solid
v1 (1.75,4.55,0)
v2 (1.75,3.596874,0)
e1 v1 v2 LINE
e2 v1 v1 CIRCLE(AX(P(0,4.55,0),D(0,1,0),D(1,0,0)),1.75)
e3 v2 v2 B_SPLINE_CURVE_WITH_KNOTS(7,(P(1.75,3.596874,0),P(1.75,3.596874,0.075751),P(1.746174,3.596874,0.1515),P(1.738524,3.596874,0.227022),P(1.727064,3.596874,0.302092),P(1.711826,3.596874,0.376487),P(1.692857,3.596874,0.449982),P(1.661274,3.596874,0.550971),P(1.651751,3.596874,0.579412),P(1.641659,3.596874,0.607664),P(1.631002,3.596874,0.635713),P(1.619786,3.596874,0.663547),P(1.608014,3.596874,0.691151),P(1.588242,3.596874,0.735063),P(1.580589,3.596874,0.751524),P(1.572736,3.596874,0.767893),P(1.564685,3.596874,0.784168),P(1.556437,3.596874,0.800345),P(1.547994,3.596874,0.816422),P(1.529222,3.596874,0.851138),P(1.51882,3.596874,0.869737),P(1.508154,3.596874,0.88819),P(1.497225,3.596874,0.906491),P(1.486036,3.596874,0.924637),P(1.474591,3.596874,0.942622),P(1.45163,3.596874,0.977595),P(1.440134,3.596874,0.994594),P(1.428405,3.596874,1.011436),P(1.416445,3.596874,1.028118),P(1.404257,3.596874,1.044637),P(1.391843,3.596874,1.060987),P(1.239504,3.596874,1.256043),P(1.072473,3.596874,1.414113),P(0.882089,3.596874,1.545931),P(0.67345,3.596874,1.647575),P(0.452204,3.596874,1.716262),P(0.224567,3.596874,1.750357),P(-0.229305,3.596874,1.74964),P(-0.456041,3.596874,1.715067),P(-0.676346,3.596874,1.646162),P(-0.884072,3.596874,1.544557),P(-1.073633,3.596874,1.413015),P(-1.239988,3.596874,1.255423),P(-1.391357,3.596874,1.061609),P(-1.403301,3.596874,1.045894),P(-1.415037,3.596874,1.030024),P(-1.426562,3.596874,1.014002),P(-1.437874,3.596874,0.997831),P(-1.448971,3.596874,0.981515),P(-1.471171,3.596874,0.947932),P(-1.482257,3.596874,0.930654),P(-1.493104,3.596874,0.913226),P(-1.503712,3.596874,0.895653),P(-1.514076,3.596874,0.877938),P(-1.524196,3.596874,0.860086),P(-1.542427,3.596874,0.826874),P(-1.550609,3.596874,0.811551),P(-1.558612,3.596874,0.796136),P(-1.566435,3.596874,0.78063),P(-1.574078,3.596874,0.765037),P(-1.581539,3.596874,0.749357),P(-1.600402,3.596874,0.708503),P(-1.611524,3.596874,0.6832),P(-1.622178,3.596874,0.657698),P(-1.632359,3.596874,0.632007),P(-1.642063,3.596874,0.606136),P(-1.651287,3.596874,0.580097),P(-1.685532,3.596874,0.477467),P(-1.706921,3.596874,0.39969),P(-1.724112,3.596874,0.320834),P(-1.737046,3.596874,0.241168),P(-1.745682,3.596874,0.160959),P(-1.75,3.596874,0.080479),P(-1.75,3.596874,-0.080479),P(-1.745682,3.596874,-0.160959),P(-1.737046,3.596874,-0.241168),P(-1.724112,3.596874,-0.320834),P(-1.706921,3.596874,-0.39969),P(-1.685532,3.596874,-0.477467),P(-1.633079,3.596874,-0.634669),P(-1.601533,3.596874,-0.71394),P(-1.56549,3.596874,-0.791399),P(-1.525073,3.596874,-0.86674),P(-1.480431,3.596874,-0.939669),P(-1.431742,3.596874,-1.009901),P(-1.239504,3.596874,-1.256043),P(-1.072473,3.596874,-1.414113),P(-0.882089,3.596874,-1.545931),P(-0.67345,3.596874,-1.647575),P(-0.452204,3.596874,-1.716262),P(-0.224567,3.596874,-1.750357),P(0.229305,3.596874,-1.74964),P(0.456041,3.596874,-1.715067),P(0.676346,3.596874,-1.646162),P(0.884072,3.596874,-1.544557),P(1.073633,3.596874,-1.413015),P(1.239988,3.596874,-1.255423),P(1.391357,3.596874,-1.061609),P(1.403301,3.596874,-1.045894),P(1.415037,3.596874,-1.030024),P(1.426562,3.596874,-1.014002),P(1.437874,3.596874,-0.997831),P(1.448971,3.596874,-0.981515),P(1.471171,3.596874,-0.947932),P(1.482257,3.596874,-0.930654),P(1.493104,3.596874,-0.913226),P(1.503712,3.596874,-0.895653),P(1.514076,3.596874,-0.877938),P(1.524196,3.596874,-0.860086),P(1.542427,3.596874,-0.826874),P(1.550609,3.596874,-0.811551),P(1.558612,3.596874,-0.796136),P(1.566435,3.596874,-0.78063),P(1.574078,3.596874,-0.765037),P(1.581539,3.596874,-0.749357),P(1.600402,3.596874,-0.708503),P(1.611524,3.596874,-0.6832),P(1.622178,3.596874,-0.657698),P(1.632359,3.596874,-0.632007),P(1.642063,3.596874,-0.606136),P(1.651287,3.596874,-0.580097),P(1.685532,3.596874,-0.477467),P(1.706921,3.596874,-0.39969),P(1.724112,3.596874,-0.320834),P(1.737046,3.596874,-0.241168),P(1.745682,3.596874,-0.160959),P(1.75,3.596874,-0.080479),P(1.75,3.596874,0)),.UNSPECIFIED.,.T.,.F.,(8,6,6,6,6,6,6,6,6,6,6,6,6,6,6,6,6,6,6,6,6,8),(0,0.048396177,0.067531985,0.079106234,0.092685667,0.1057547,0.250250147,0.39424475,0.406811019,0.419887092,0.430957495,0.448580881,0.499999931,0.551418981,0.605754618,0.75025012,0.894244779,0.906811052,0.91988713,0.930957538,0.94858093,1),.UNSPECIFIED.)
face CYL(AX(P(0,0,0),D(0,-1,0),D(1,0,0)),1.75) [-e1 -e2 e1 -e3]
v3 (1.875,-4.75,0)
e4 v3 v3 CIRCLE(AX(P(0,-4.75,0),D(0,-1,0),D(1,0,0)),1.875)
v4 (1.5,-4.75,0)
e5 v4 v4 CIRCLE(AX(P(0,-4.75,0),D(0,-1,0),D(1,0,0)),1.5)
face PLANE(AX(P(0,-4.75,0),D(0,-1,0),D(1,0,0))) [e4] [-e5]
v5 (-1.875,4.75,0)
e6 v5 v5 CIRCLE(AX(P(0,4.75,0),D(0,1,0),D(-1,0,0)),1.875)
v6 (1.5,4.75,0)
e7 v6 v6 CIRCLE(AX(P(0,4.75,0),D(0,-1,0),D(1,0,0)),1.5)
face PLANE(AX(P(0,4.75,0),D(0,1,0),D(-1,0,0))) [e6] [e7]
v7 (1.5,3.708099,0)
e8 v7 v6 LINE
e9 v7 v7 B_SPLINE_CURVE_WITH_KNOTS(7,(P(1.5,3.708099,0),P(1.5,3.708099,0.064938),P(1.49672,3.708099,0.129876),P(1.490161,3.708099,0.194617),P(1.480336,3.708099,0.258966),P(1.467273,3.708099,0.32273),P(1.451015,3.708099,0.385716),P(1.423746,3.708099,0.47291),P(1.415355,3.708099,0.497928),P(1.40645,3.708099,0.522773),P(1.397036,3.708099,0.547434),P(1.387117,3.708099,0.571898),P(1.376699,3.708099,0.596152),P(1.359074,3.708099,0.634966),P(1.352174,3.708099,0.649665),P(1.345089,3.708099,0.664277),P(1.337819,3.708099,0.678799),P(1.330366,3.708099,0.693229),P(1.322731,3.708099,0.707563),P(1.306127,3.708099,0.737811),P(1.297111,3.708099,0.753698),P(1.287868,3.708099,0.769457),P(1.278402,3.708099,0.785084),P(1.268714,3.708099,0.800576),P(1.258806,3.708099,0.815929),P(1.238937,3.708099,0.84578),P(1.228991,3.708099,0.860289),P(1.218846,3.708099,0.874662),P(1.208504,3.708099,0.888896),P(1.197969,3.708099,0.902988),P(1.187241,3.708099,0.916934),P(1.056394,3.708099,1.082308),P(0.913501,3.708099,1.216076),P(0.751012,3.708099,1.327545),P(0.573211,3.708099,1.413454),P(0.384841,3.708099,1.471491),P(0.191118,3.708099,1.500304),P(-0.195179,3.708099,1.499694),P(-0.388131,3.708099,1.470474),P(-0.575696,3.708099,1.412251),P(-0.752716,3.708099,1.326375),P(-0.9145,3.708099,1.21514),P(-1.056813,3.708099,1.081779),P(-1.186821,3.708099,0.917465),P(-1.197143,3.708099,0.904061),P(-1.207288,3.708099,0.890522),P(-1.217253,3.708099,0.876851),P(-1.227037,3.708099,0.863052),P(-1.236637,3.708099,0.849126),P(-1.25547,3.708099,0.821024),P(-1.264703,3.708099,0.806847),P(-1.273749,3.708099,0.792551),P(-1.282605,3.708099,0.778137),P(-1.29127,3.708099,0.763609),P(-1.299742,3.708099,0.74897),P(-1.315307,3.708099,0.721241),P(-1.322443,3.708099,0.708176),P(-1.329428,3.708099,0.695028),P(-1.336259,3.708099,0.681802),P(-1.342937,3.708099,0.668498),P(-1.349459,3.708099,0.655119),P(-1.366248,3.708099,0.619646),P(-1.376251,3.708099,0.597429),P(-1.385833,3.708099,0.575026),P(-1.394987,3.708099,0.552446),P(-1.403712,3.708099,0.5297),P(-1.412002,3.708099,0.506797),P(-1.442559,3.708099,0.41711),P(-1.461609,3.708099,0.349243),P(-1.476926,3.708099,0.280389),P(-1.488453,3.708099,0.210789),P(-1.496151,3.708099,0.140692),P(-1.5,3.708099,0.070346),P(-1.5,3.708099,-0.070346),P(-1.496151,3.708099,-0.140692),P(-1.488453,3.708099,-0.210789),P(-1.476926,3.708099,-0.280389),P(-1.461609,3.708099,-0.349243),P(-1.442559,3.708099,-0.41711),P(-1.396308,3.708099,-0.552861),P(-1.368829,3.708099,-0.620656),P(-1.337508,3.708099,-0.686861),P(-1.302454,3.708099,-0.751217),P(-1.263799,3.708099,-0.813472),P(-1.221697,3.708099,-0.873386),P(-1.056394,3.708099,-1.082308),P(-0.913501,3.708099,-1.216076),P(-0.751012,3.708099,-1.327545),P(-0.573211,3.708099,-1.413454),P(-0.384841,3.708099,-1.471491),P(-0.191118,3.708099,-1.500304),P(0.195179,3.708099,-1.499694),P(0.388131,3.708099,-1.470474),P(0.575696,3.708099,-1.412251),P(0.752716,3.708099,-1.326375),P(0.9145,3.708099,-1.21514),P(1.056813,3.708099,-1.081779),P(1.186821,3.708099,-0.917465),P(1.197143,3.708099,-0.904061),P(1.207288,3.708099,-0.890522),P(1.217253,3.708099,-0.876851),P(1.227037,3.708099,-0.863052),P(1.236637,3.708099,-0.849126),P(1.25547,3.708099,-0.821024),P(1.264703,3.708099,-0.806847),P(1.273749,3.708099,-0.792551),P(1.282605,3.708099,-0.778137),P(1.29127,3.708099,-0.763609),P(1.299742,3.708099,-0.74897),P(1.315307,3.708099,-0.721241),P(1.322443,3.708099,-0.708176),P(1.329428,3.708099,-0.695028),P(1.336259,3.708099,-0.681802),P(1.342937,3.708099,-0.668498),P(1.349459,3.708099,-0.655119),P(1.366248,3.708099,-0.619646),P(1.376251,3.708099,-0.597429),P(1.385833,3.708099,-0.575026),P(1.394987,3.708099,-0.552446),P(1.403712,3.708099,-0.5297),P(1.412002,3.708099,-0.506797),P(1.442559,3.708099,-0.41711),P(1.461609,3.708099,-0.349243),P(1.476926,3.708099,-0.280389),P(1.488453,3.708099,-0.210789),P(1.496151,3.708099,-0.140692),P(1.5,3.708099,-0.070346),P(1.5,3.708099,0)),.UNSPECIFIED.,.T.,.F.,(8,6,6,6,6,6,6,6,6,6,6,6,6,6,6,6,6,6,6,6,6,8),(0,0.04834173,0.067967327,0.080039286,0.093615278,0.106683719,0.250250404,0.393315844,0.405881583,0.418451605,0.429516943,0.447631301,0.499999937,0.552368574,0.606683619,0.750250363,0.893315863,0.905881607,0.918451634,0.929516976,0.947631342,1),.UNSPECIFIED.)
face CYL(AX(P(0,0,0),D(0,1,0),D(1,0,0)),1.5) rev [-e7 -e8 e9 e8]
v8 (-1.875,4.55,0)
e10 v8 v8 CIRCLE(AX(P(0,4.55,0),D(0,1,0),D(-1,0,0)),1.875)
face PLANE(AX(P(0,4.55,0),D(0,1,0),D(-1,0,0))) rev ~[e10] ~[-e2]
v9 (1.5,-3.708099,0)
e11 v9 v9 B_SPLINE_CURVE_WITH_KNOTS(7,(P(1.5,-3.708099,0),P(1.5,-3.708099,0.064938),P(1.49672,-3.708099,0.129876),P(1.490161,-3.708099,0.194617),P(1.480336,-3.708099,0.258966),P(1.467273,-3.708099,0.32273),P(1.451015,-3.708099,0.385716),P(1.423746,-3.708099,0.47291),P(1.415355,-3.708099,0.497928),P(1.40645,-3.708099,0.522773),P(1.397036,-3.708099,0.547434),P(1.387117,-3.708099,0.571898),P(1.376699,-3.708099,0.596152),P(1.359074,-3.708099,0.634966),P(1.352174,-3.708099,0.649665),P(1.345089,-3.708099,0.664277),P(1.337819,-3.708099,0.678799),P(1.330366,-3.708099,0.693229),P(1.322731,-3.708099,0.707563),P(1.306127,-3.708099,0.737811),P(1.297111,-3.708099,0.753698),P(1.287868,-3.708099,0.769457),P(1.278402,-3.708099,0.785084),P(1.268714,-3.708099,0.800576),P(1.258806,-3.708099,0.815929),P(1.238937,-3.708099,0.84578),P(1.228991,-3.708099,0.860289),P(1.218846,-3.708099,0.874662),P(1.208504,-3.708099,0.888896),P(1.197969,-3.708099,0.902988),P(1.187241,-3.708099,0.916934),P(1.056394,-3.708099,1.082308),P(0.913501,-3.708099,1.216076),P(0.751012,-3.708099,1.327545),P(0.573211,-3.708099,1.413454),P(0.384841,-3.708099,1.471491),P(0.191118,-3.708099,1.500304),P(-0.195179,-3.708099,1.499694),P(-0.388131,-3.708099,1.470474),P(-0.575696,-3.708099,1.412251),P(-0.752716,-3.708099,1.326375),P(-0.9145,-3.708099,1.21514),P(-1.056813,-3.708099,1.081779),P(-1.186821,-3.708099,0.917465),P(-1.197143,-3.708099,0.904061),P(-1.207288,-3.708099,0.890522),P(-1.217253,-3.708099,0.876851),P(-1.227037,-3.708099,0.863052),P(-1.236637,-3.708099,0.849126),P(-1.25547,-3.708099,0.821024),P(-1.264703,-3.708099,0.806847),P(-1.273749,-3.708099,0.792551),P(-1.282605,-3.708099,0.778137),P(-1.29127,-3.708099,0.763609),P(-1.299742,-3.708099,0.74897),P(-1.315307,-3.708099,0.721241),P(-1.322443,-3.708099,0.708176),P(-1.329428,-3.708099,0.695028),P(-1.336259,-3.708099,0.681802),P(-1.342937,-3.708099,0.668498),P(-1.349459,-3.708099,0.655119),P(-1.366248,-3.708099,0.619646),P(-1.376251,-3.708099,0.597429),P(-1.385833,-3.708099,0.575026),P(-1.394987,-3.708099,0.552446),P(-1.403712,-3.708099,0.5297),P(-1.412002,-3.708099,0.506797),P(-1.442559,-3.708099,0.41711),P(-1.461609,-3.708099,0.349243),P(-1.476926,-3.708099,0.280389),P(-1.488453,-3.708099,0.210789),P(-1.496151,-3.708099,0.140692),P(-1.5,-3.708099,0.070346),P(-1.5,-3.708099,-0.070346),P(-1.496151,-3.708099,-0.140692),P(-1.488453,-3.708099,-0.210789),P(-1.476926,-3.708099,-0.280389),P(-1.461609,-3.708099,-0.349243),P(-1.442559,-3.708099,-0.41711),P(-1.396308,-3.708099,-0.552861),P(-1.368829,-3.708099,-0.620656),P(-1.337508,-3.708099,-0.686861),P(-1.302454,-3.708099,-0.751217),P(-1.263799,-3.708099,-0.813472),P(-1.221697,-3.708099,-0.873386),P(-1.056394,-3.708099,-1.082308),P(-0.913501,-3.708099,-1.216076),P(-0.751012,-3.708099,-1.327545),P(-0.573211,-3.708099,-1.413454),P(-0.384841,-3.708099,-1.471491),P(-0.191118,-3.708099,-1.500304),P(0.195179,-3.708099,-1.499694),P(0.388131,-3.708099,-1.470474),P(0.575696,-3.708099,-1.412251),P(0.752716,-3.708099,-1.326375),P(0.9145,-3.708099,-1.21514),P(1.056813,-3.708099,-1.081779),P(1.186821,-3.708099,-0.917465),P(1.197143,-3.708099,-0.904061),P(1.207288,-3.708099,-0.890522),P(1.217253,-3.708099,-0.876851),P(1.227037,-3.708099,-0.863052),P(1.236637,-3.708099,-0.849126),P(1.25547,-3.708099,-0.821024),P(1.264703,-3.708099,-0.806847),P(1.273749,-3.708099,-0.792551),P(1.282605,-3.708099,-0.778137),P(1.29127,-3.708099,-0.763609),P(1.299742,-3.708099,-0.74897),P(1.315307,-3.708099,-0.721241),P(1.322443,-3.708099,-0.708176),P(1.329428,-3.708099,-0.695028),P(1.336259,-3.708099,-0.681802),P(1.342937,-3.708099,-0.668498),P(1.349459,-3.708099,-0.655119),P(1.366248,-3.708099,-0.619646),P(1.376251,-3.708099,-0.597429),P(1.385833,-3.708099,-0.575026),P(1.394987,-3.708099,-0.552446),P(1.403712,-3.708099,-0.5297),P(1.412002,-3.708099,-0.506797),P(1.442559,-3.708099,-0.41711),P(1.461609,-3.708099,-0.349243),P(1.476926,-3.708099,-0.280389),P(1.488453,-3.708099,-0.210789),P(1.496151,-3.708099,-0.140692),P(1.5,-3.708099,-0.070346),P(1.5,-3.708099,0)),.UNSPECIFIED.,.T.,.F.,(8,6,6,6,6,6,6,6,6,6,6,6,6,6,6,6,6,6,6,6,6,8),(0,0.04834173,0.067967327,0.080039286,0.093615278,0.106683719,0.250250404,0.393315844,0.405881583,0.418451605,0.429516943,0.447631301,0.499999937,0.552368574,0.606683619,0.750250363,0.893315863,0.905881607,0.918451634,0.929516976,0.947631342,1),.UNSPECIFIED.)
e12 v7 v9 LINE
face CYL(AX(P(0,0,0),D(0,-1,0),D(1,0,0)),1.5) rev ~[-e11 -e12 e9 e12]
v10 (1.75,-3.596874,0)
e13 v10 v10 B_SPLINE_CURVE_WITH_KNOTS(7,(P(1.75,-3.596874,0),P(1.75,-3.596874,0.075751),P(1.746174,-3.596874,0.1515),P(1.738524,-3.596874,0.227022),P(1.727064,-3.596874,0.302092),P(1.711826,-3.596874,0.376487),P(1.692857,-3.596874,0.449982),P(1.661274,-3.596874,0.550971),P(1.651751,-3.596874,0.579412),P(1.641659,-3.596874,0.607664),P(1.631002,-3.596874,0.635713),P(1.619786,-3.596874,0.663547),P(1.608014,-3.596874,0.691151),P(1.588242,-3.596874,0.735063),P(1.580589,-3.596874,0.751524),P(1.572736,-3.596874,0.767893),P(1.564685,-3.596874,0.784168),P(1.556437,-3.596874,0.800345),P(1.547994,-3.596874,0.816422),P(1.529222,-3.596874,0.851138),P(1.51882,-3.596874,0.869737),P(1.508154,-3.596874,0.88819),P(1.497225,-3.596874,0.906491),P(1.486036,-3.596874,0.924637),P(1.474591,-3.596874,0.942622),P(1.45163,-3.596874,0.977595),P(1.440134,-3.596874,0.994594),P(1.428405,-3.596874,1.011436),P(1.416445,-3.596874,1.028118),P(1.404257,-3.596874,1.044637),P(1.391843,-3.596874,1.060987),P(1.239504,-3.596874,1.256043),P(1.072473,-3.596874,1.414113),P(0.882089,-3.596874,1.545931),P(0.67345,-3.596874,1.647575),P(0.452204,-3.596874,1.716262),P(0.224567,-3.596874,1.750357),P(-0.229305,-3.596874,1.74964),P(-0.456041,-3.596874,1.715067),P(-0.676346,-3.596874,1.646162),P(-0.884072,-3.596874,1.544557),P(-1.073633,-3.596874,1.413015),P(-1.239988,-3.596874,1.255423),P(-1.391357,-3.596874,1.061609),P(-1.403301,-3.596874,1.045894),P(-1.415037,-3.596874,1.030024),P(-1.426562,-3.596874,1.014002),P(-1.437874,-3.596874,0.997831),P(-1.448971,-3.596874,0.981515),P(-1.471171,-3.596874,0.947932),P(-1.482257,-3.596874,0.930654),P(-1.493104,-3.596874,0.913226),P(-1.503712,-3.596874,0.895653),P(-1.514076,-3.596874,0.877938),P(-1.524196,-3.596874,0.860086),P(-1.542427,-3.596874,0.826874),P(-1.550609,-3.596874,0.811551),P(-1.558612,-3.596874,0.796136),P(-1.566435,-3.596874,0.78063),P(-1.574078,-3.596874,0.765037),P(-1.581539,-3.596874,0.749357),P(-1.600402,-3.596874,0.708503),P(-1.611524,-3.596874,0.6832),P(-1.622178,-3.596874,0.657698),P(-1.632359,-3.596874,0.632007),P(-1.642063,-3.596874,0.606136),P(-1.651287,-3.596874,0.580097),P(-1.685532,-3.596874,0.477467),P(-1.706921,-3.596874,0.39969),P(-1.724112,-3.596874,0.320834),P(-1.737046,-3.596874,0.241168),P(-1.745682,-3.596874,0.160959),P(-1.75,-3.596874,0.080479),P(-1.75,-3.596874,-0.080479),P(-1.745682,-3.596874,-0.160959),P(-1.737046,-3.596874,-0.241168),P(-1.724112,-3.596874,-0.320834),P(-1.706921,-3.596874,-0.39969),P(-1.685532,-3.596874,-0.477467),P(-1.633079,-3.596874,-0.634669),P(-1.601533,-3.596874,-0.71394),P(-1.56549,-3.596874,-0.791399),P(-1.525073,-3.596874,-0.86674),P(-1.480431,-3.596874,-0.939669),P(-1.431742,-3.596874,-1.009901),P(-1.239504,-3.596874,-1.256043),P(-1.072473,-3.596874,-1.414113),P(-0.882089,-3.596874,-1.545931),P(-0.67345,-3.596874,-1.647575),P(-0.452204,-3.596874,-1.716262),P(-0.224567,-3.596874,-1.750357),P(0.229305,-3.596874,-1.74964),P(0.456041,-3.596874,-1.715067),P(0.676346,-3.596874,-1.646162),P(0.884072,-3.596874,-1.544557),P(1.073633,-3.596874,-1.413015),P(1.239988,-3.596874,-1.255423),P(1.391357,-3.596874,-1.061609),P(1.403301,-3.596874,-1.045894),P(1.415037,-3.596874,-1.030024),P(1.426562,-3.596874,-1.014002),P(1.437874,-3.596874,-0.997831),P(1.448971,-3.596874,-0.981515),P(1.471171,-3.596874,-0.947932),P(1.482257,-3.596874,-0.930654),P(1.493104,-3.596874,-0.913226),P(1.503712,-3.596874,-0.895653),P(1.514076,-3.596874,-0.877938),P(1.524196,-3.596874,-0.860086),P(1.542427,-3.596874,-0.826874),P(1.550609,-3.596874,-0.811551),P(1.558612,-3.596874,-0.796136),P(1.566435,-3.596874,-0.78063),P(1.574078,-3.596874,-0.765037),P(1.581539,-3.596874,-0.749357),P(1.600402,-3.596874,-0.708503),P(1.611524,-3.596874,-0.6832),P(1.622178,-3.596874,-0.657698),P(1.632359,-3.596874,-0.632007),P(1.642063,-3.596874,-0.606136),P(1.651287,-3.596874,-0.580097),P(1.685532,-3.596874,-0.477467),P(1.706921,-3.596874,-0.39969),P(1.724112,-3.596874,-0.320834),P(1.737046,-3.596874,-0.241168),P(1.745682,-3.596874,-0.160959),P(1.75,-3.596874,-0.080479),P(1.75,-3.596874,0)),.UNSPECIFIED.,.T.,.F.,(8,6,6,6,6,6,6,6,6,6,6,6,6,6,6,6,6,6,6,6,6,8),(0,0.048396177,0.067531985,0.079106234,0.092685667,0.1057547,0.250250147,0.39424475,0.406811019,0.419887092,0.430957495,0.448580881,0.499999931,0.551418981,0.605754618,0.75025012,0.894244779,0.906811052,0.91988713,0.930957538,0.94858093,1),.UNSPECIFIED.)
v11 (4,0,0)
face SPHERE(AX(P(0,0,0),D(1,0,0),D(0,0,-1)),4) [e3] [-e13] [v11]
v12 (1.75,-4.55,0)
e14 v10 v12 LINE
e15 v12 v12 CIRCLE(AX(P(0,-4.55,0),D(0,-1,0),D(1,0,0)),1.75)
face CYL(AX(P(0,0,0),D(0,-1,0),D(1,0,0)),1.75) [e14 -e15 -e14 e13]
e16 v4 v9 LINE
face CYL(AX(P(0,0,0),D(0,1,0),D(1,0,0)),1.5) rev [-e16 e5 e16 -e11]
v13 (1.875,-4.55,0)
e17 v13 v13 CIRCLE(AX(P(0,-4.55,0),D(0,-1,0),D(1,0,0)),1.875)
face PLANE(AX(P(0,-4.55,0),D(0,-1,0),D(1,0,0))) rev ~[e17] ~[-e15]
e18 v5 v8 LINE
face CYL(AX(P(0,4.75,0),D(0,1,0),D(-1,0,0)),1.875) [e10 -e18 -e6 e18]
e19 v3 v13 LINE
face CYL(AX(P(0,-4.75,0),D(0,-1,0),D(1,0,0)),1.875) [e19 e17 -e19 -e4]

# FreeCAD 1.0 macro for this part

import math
import FreeCAD as App
import Part
import Sketcher

doc = App.newDocument("Part")
params = doc.addObject("Spreadsheet::Sheet", "Params")
for row, (alias, value) in enumerate([
    ("sketch1_radius", "4 mm"),
    ("revolution_angle", "360 deg"),
    ("sketch2_diameter", "3 mm"),
    ("pocket1_length", "25 mm"),
    ("sketch3_diameter", "3 mm"),
    ("sketch3_diameter2", "3.5 mm"),
    ("pad1_length", "9.5 mm"),
    ("sketch4_diameter", "3.5 mm"),
    ("sketch4_diameter2", "3.75 mm"),
    ("pad2_length", "0.2 mm"),
    ("sketch5_diameter", "3.5 mm"),
    ("sketch5_diameter2", "3.75 mm"),
    ("pad3_length", "0.2 mm"),
], start=1):
    params.set(f"A{row}", alias)
    params.set(f"B{row}", "=" + value)
    params.setAlias(f"B{row}", alias)

body = doc.addObject("PartDesign::Body", "Body")

sketch1 = body.newObject("Sketcher::SketchObject", "Sketch")
sketch1.AttachmentSupport = (doc.getObject("XZ_Plane"), [""])
sketch1.MapMode = "FlatFace"
sketch1.addGeometry(Part.ArcOfCircle(Part.Circle(App.Vector(0, 0, 0), App.Vector(0, 0, 1), 4), math.radians(180), math.radians(360)), False)
sketch1.addGeometry(Part.LineSegment(App.Vector(4, 0, 0), App.Vector(-4, 0, 0)), False)
sketch1.addConstraint(Sketcher.Constraint("Coincident", 0, 1, 1, 2))
sketch1.addConstraint(Sketcher.Constraint("Coincident", 1, 1, 0, 2))
sketch1.addConstraint(Sketcher.Constraint("Horizontal", 1))
sketch1.addConstraint(Sketcher.Constraint("Coincident", 0, 3, -1, 1))
sketch1.addConstraint(Sketcher.Constraint("PointOnObject", 0, 1, -1))
sketch1.addConstraint(Sketcher.Constraint("Radius", 0, 4.0))
sketch1.setExpression("Constraints[5]", "Params.sketch1_radius")
revolution = body.newObject("PartDesign::Revolution", "Revolution")
revolution.Profile = sketch1
revolution.ReferenceAxis = (sketch1, ["H_Axis"])
revolution.setExpression("Angle", "Params.revolution_angle")

sketch2 = body.newObject("Sketcher::SketchObject", "Sketch001")
sketch2.AttachmentSupport = (doc.getObject("XZ_Plane"), [""])
sketch2.MapMode = "FlatFace"
sketch2.addGeometry(Part.Circle(App.Vector(0, 0, 0), App.Vector(0, 0, 1), 1.5), False)
sketch2.addConstraint(Sketcher.Constraint("Coincident", 0, 3, -1, 1))
sketch2.addConstraint(Sketcher.Constraint("Diameter", 0, 3.0))
sketch2.setExpression("Constraints[1]", "Params.sketch2_diameter")
pocket1 = body.newObject("PartDesign::Pocket", "Pocket")
pocket1.Profile = sketch2
pocket1.setExpression("Length", "Params.pocket1_length")
pocket1.Midplane = True

sketch3 = body.newObject("Sketcher::SketchObject", "Sketch002")
sketch3.AttachmentSupport = (doc.getObject("XZ_Plane"), [""])
sketch3.MapMode = "FlatFace"
sketch3.addGeometry(Part.Circle(App.Vector(0, 0, 0), App.Vector(0, 0, 1), 1.8), False)
sketch3.addGeometry(Part.Circle(App.Vector(0, 0, 0), App.Vector(0, 0, 1), 1.5), False)
sketch3.addConstraint(Sketcher.Constraint("Coincident", 0, 3, -1, 1))
sketch3.addConstraint(Sketcher.Constraint("Coincident", 1, 3, -1, 1))
sketch3.addConstraint(Sketcher.Constraint("Diameter", 1, 3.0))
sketch3.addConstraint(Sketcher.Constraint("Diameter", 0, 3.5))
sketch3.setExpression("Constraints[2]", "Params.sketch3_diameter")
sketch3.setExpression("Constraints[3]", "Params.sketch3_diameter2")
pad1 = body.newObject("PartDesign::Pad", "Pad")
pad1.Profile = sketch3
pad1.setExpression("Length", "Params.pad1_length")
pad1.Midplane = True

sketch4 = body.newObject("Sketcher::SketchObject", "Sketch003")
sketch4.AttachmentSupport = (doc.getObject("XZ_Plane"), [""])
sketch4.MapMode = "FlatFace"
sketch4.AttachmentOffset = App.Placement(App.Vector(0, 0, 4.75), App.Rotation())
sketch4.addGeometry(Part.Circle(App.Vector(0, 0, 0), App.Vector(0, 0, 1), 1.9), False)
sketch4.addGeometry(Part.Circle(App.Vector(0, 0, 0), App.Vector(0, 0, 1), 1.8), False)
sketch4.addConstraint(Sketcher.Constraint("Coincident", 0, 3, -1, 1))
sketch4.addConstraint(Sketcher.Constraint("Coincident", 1, 3, -1, 1))
sketch4.addConstraint(Sketcher.Constraint("Diameter", 1, 3.5))
sketch4.addConstraint(Sketcher.Constraint("Diameter", 0, 3.75))
sketch4.setExpression("Constraints[2]", "Params.sketch4_diameter")
sketch4.setExpression("Constraints[3]", "Params.sketch4_diameter2")
pad2 = body.newObject("PartDesign::Pad", "Pad001")
pad2.Profile = sketch4
pad2.setExpression("Length", "Params.pad2_length")
pad2.Reversed = True

sketch5 = body.newObject("Sketcher::SketchObject", "Sketch004")
sketch5.AttachmentSupport = (doc.getObject("XZ_Plane"), [""])
sketch5.MapMode = "FlatFace"
sketch5.AttachmentOffset = App.Placement(App.Vector(0, 0, -4.75), App.Rotation())
sketch5.addGeometry(Part.Circle(App.Vector(0, 0, 0), App.Vector(0, 0, 1), 1.9), False)
sketch5.addGeometry(Part.Circle(App.Vector(0, 0, 0), App.Vector(0, 0, 1), 1.8), False)
sketch5.addConstraint(Sketcher.Constraint("Coincident", 0, 3, -1, 1))
sketch5.addConstraint(Sketcher.Constraint("Coincident", 1, 3, -1, 1))
sketch5.addConstraint(Sketcher.Constraint("Diameter", 1, 3.5))
sketch5.addConstraint(Sketcher.Constraint("Diameter", 0, 3.75))
sketch5.setExpression("Constraints[2]", "Params.sketch5_diameter")
sketch5.setExpression("Constraints[3]", "Params.sketch5_diameter2")
pad3 = body.newObject("PartDesign::Pad", "Pad002")
pad3.Profile = sketch5
pad3.setExpression("Length", "Params.pad3_length")

doc.recompute()
